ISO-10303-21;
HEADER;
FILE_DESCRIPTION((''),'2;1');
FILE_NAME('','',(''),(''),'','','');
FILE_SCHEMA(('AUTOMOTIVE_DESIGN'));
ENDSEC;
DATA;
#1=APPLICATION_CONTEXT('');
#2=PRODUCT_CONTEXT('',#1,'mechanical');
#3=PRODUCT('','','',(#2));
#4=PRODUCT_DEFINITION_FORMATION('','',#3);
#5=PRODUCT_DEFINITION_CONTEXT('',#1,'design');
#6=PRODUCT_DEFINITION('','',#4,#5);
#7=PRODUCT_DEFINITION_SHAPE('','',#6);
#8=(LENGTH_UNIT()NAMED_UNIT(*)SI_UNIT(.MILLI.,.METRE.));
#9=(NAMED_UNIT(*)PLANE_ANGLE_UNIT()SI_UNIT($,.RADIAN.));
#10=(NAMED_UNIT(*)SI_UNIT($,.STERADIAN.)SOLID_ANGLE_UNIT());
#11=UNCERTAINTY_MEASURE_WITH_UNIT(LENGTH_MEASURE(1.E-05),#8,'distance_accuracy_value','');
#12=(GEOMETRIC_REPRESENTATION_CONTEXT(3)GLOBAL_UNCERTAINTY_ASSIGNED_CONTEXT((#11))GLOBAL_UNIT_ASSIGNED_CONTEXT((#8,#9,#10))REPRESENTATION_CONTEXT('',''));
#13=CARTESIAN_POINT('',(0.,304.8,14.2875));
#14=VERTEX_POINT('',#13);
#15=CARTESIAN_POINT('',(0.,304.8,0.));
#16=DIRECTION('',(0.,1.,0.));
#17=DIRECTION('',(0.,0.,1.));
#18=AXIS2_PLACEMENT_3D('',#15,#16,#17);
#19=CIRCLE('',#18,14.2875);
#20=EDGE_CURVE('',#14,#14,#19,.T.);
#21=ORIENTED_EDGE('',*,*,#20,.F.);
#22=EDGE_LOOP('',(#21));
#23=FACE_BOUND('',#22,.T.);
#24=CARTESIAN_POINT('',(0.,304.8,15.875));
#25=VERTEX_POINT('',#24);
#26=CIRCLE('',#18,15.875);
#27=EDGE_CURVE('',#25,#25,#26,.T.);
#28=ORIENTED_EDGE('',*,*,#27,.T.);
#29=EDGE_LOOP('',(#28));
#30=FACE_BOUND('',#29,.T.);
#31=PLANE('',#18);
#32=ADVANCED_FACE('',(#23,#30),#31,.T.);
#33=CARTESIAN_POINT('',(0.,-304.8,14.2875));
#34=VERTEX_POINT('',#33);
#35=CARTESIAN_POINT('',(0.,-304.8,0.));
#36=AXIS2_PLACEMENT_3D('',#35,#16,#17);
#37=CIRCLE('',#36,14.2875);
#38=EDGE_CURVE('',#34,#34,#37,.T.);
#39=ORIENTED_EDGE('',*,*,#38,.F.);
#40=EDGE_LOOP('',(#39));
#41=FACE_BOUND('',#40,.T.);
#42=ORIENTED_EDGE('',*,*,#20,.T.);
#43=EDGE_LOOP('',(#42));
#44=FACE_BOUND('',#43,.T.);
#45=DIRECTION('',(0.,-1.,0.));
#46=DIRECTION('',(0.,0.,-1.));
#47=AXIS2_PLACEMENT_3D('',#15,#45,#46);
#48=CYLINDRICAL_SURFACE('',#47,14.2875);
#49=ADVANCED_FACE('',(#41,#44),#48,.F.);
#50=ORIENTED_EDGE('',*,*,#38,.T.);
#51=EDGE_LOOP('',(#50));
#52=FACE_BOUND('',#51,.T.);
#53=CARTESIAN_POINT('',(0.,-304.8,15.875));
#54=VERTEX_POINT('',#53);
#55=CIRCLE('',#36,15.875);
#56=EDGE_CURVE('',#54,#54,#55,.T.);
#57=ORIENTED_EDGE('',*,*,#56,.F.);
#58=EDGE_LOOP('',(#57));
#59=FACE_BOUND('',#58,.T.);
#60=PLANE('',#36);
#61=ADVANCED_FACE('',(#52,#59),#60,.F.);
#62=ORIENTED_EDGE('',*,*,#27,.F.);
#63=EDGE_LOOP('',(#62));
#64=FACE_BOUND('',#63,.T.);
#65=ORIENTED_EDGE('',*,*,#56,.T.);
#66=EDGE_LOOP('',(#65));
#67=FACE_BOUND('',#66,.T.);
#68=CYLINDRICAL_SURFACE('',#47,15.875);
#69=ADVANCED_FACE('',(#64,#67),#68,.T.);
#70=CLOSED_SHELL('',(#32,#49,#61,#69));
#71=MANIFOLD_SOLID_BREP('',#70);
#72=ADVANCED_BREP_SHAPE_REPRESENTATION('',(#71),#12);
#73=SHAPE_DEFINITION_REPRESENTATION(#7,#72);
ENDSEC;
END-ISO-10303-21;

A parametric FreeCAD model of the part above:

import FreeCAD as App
import Part
import Sketcher
from FreeCAD import Vector
Q = App.Units.Quantity

doc = App.newDocument("Part")
body = doc.addObject("PartDesign::Body", "Body")

# Sketch on XZ plane
sketch1 = body.newObject("Sketcher::SketchObject", "Sketch")
sketch1.AttachmentSupport = (doc.getObject("XZ_Plane"), [""])
sketch1.MapMode = "FlatFace"
sketch1.addGeometry([
    Part.Circle(Vector(0, 0, 0), Vector(0, 0, 1), 15.875),
    Part.Circle(Vector(0, 0, 0), Vector(0, 0, 1), 14.2875),
], False)
sketch1.addConstraint([
    Sketcher.Constraint("Coincident", 0, 3, -1, 1),
    Sketcher.Constraint("Coincident", 1, 3, -1, 1),
    Sketcher.Constraint("Diameter", 0, Q("1.25 in")),
    Sketcher.Constraint("Diameter", 1, Q("1.125 in")),
])
pad1 = body.newObject("PartDesign::Pad", "Pad")
pad1.Profile = sketch1
pad1.Length = Q("24 in")
pad1.Midplane = True

doc.recompute()
